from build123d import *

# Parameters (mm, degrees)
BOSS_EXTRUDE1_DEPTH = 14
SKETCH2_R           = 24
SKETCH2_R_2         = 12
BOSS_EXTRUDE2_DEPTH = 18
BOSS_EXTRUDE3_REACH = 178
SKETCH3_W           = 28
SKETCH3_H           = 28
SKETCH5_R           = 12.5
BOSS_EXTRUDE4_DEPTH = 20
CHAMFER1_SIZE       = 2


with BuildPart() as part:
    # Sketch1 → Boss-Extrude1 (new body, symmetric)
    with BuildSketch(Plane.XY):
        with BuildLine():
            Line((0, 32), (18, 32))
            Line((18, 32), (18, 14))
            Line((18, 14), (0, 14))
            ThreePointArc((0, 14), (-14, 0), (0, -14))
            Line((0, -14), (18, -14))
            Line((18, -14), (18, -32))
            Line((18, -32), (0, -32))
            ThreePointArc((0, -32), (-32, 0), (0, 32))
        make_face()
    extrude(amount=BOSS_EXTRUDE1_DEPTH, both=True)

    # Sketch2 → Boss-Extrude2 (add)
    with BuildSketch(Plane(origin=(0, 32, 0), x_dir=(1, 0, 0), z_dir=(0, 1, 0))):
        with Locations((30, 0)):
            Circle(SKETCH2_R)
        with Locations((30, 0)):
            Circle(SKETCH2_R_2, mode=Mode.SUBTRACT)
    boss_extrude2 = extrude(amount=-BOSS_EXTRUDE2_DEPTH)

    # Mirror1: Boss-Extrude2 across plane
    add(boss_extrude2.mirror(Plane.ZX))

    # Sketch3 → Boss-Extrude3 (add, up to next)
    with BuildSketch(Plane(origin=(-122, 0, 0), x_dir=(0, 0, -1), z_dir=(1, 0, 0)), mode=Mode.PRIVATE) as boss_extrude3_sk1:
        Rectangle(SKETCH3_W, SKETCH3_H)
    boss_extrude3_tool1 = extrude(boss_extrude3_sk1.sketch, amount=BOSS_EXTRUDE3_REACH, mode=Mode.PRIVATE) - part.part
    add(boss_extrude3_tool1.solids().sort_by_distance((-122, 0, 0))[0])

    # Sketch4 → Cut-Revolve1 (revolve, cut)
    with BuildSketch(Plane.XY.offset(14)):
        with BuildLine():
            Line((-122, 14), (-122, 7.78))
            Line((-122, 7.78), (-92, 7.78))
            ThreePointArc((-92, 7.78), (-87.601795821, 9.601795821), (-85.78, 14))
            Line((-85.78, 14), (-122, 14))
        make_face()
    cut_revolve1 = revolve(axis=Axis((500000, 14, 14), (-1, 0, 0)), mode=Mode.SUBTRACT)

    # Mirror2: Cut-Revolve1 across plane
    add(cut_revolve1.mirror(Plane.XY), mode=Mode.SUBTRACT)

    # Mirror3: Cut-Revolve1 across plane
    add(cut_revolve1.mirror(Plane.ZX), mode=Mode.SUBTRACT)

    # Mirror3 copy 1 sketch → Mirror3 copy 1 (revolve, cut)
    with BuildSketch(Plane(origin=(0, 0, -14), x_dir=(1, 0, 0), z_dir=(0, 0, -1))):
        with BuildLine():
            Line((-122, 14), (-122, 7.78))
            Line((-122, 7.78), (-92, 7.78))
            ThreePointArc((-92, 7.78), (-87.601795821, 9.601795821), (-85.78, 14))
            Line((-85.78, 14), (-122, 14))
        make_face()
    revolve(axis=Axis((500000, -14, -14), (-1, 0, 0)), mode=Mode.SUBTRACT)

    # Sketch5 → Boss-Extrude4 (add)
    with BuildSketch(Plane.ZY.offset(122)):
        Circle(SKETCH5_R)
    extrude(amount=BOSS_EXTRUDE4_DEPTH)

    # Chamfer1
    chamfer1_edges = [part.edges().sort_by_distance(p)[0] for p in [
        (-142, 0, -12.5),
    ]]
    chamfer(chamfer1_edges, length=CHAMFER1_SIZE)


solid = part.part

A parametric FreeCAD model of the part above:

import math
import FreeCAD as App
import Part
import Sketcher
Q = App.Units.Quantity


def edges_at(feature, points):
    """Names of the edges that pass closest to the given points."""
    edges = feature.Shape.Edges
    near = lambda p: min(range(len(edges)), key=lambda i: edges[i].distToShape(Part.Vertex(*p))[0])
    return sorted({f"Edge{near(p) + 1}" for p in points})


def add_polygon(sketch, points):
    """Adds a closed chain of lines whose ends are joined by coincident constraints."""
    first, n = sketch.GeometryCount, len(points)
    for a, b in zip(points, points[1:] + points[:1]):
        sketch.addGeometry(Part.LineSegment(App.Vector(*a, 0), App.Vector(*b, 0)), False)
    for i in range(n):
        sketch.addConstraint(Sketcher.Constraint("Coincident", first + i, 2, first + (i + 1) % n, 1))

doc = App.newDocument("Part")
body = doc.addObject("PartDesign::Body", "Body")

sketch1 = body.newObject("Sketcher::SketchObject", "Sketch")
sketch1.AttachmentSupport = (doc.getObject("XY_Plane"), [""])
sketch1.MapMode = "FlatFace"
sketch1.addGeometry([
    Part.LineSegment(App.Vector(18, 32, 0), App.Vector(0, 32, 0)),
    Part.ArcOfCircle(Part.Circle(App.Vector(0, 0, 0), App.Vector(0, 0, 1), 32), math.radians(90), math.radians(270)),
    Part.LineSegment(App.Vector(0, -32, 0), App.Vector(18, -32, 0)),
    Part.LineSegment(App.Vector(18, -32, 0), App.Vector(18, -14, 0)),
    Part.LineSegment(App.Vector(18, -14, 0), App.Vector(0, -14, 0)),
    Part.ArcOfCircle(Part.Circle(App.Vector(0, 0, 0), App.Vector(0, 0, 1), 14), math.radians(90), math.radians(270)),
    Part.LineSegment(App.Vector(0, 14, 0), App.Vector(18, 14, 0)),
    Part.LineSegment(App.Vector(18, 14, 0), App.Vector(18, 32, 0)),
], False)
sketch1.addConstraint([
    Sketcher.Constraint("Tangent", 0, 2, 1, 1),
    Sketcher.Constraint("Tangent", 1, 2, 2, 1),
    Sketcher.Constraint("Coincident", 2, 2, 3, 1),
    Sketcher.Constraint("Coincident", 3, 2, 4, 1),
    Sketcher.Constraint("Tangent", 4, 2, 5, 2),
    Sketcher.Constraint("Tangent", 5, 1, 6, 1),
    Sketcher.Constraint("Coincident", 6, 2, 7, 1),
    Sketcher.Constraint("Coincident", 7, 2, 0, 1),
    Sketcher.Constraint("Horizontal", 0),
    Sketcher.Constraint("Horizontal", 2),
    Sketcher.Constraint("Vertical", 3),
    Sketcher.Constraint("Horizontal", 4),
    Sketcher.Constraint("Horizontal", 6),
    Sketcher.Constraint("Vertical", 7),
    Sketcher.Constraint("Coincident", 1, 3, -1, 1),
    Sketcher.Constraint("Coincident", 5, 3, -1, 1),
    Sketcher.Constraint("Vertical", 3, 2, 6, 2),
    Sketcher.Constraint("Equal", 6, 3),
    Sketcher.Constraint("Radius", 1, Q("32 mm")),
    Sketcher.Constraint("Radius", 5, Q("14 mm")),
])
pad1 = body.newObject("PartDesign::Pad", "Pad")
pad1.Profile = sketch1
pad1.Length = 28
pad1.Midplane = True

sketch2 = body.newObject("Sketcher::SketchObject", "Sketch001")
sketch2.AttachmentSupport = (doc.getObject("XZ_Plane"), [""])
sketch2.MapMode = "FlatFace"
sketch2.AttachmentOffset = App.Placement(App.Vector(0, 0, -32), App.Rotation())
sketch2.addGeometry([
    Part.Circle(App.Vector(30, 0, 0), App.Vector(0, 0, 1), 24),
    Part.Circle(App.Vector(30, 0, 0), App.Vector(0, 0, 1), 12),
], False)
sketch2.addConstraint([
    Sketcher.Constraint("Coincident", 1, 3, 0, 3),
    Sketcher.Constraint("PointOnObject", 0, 3, -1),
    Sketcher.Constraint("Diameter", 0, Q("48 mm")),
    Sketcher.Constraint("Diameter", 1, Q("24 mm")),
    Sketcher.Constraint("DistanceX", -1, 1, 0, 3, Q("30 mm")),
])
pad2 = body.newObject("PartDesign::Pad", "Pad001")
pad2.Profile = sketch2
pad2.Length = 18
doc.recompute()

mirrored = body.newObject("PartDesign::Mirrored", "Mirrored")
mirrored.Originals = [pad2]
mirrored.MirrorPlane = (doc.getObject("XZ_Plane"), [""])
body.Tip = mirrored

sketch3 = body.newObject("Sketcher::SketchObject", "Sketch002")
sketch3.AttachmentSupport = (doc.getObject("YZ_Plane"), [""])
sketch3.MapMode = "FlatFace"
sketch3.AttachmentOffset = App.Placement(App.Vector(0, 0, -122), App.Rotation())
add_polygon(sketch3, [(14, 14), (-14, 14), (-14, -14), (14, -14)])
sketch3.addConstraint([
    Sketcher.Constraint("Horizontal", 0),
    Sketcher.Constraint("Vertical", 1),
    Sketcher.Constraint("Horizontal", 2),
    Sketcher.Constraint("Vertical", 3),
    Sketcher.Constraint("Symmetric", 0, 2, 2, 2, -1, 1),
    Sketcher.Constraint("Equal", 2, 1),
    Sketcher.Constraint("DistanceX", 0, 2, 0, 1, Q("28 mm")),
])
pad3 = body.newObject("PartDesign::Pad", "Pad002")
pad3.Profile = sketch3
pad3.Type = "UpToFirst"

sketch4 = body.newObject("Sketcher::SketchObject", "Sketch003")
sketch4.AttachmentSupport = (doc.getObject("XY_Plane"), [""])
sketch4.MapMode = "FlatFace"
sketch4.AttachmentOffset = App.Placement(App.Vector(0, 0, 14), App.Rotation())
sketch4.addGeometry([
    Part.LineSegment(App.Vector(-122, 14, 0), App.Vector(-122, 7.78, 0)),
    Part.LineSegment(App.Vector(-122, 7.78, 0), App.Vector(-92, 7.78, 0)),
    Part.ArcOfCircle(Part.Circle(App.Vector(-92, 14, 0), App.Vector(0, 0, 1), 6.22), math.radians(-90), math.radians(0)),
    Part.LineSegment(App.Vector(-85.78, 14, 0), App.Vector(-122, 14, 0)),
], False)
sketch4.addGeometry(Part.LineSegment(App.Vector(-85.78, 14, 0), App.Vector(-122, 14, 0)), True)
sketch4.addConstraint([
    Sketcher.Constraint("Coincident", 0, 2, 1, 1),
    Sketcher.Constraint("Tangent", 1, 2, 2, 1),
    Sketcher.Constraint("Coincident", 2, 2, 3, 1),
    Sketcher.Constraint("Coincident", 3, 2, 0, 1),
    Sketcher.Constraint("Vertical", 0),
    Sketcher.Constraint("Horizontal", 1),
    Sketcher.Constraint("Horizontal", 3),
    Sketcher.Constraint("Horizontal", 4),
    Sketcher.Constraint("Coincident", 4, 1, 2, 2),
    Sketcher.Constraint("Vertical", 0, 2, 4, 2),
    Sketcher.Constraint("DistanceX", 1, 1, 1, 2, Q("30 mm")),
    Sketcher.Constraint("Radius", 2, Q("6.22 mm")),
    Sketcher.Constraint("DistanceX", 2, 3, -1, 1, Q("92 mm")),
    Sketcher.Constraint("DistanceY", -1, 1, 2, 3, Q("14 mm")),
    Sketcher.Constraint("DistanceY", -1, 1, 2, 2, Q("14 mm")),
])
groove = body.newObject("PartDesign::Groove", "Groove")
groove.Profile = sketch4
groove.ReferenceAxis = (sketch4, ["Axis0"])
groove.Angle = 360
doc.recompute()

mirrored2 = body.newObject("PartDesign::Mirrored", "Mirrored001")
mirrored2.Originals = [groove]
mirrored2.MirrorPlane = (doc.getObject("XY_Plane"), [""])
body.Tip = mirrored2
doc.recompute()

mirrored3 = body.newObject("PartDesign::Mirrored", "Mirrored002")
mirrored3.Originals = [groove]
mirrored3.MirrorPlane = (doc.getObject("XZ_Plane"), [""])
body.Tip = mirrored3

sketch5 = body.newObject("Sketcher::SketchObject", "Sketch004")
sketch5.AttachmentSupport = (doc.getObject("XY_Plane"), [""])
sketch5.MapMode = "FlatFace"
sketch5.AttachmentOffset = App.Placement(App.Vector(0, 0, -14), App.Rotation())
sketch5.addGeometry([
    Part.LineSegment(App.Vector(-122, -14, 0), App.Vector(-122, -7.78, 0)),
    Part.LineSegment(App.Vector(-122, -7.78, 0), App.Vector(-92, -7.78, 0)),
    Part.ArcOfCircle(Part.Circle(App.Vector(-92, -14, 0), App.Vector(0, 0, 1), 6.22), math.radians(0), math.radians(90)),
    Part.LineSegment(App.Vector(-85.78, -14, 0), App.Vector(-122, -14, 0)),
], False)
sketch5.addGeometry(Part.LineSegment(App.Vector(-85.78, -14, 0), App.Vector(-122, -14, 0)), True)
sketch5.addConstraint([
    Sketcher.Constraint("Coincident", 0, 2, 1, 1),
    Sketcher.Constraint("Tangent", 1, 2, 2, 2),
    Sketcher.Constraint("Coincident", 2, 1, 3, 1),
    Sketcher.Constraint("Coincident", 3, 2, 0, 1),
    Sketcher.Constraint("Vertical", 0),
    Sketcher.Constraint("Horizontal", 1),
    Sketcher.Constraint("Horizontal", 3),
    Sketcher.Constraint("Horizontal", 4),
    Sketcher.Constraint("Coincident", 4, 1, 2, 1),
    Sketcher.Constraint("Vertical", 0, 2, 4, 2),
    Sketcher.Constraint("DistanceX", 1, 1, 1, 2, Q("30 mm")),
    Sketcher.Constraint("Radius", 2, Q("6.22 mm")),
    Sketcher.Constraint("DistanceX", 2, 3, -1, 1, Q("92 mm")),
    Sketcher.Constraint("DistanceY", 2, 3, -1, 1, Q("14 mm")),
    Sketcher.Constraint("DistanceY", 2, 1, -1, 1, Q("14 mm")),
])
groove2 = body.newObject("PartDesign::Groove", "Groove001")
groove2.Profile = sketch5
groove2.ReferenceAxis = (sketch5, ["Axis0"])
groove2.Angle = 360

sketch6 = body.newObject("Sketcher::SketchObject", "Sketch005")
sketch6.AttachmentSupport = (doc.getObject("YZ_Plane"), [""])
sketch6.MapMode = "FlatFace"
sketch6.AttachmentOffset = App.Placement(App.Vector(0, 0, -122), App.Rotation())
sketch6.addGeometry(Part.Circle(App.Vector(0, 0, 0), App.Vector(0, 0, 1), 12.5), False)
sketch6.addConstraint([
    Sketcher.Constraint("Coincident", 0, 3, -1, 1),
    Sketcher.Constraint("Diameter", 0, Q("25 mm")),
])
pad4 = body.newObject("PartDesign::Pad", "Pad003")
pad4.Profile = sketch6
pad4.Length = 20
pad4.Reversed = True
doc.recompute()

chamfer = body.newObject("PartDesign::Chamfer", "Chamfer")
chamfer.Base = (pad4, edges_at(pad4, [(-142, 0, -12.5)]))
chamfer.Size = 2

doc.recompute()
